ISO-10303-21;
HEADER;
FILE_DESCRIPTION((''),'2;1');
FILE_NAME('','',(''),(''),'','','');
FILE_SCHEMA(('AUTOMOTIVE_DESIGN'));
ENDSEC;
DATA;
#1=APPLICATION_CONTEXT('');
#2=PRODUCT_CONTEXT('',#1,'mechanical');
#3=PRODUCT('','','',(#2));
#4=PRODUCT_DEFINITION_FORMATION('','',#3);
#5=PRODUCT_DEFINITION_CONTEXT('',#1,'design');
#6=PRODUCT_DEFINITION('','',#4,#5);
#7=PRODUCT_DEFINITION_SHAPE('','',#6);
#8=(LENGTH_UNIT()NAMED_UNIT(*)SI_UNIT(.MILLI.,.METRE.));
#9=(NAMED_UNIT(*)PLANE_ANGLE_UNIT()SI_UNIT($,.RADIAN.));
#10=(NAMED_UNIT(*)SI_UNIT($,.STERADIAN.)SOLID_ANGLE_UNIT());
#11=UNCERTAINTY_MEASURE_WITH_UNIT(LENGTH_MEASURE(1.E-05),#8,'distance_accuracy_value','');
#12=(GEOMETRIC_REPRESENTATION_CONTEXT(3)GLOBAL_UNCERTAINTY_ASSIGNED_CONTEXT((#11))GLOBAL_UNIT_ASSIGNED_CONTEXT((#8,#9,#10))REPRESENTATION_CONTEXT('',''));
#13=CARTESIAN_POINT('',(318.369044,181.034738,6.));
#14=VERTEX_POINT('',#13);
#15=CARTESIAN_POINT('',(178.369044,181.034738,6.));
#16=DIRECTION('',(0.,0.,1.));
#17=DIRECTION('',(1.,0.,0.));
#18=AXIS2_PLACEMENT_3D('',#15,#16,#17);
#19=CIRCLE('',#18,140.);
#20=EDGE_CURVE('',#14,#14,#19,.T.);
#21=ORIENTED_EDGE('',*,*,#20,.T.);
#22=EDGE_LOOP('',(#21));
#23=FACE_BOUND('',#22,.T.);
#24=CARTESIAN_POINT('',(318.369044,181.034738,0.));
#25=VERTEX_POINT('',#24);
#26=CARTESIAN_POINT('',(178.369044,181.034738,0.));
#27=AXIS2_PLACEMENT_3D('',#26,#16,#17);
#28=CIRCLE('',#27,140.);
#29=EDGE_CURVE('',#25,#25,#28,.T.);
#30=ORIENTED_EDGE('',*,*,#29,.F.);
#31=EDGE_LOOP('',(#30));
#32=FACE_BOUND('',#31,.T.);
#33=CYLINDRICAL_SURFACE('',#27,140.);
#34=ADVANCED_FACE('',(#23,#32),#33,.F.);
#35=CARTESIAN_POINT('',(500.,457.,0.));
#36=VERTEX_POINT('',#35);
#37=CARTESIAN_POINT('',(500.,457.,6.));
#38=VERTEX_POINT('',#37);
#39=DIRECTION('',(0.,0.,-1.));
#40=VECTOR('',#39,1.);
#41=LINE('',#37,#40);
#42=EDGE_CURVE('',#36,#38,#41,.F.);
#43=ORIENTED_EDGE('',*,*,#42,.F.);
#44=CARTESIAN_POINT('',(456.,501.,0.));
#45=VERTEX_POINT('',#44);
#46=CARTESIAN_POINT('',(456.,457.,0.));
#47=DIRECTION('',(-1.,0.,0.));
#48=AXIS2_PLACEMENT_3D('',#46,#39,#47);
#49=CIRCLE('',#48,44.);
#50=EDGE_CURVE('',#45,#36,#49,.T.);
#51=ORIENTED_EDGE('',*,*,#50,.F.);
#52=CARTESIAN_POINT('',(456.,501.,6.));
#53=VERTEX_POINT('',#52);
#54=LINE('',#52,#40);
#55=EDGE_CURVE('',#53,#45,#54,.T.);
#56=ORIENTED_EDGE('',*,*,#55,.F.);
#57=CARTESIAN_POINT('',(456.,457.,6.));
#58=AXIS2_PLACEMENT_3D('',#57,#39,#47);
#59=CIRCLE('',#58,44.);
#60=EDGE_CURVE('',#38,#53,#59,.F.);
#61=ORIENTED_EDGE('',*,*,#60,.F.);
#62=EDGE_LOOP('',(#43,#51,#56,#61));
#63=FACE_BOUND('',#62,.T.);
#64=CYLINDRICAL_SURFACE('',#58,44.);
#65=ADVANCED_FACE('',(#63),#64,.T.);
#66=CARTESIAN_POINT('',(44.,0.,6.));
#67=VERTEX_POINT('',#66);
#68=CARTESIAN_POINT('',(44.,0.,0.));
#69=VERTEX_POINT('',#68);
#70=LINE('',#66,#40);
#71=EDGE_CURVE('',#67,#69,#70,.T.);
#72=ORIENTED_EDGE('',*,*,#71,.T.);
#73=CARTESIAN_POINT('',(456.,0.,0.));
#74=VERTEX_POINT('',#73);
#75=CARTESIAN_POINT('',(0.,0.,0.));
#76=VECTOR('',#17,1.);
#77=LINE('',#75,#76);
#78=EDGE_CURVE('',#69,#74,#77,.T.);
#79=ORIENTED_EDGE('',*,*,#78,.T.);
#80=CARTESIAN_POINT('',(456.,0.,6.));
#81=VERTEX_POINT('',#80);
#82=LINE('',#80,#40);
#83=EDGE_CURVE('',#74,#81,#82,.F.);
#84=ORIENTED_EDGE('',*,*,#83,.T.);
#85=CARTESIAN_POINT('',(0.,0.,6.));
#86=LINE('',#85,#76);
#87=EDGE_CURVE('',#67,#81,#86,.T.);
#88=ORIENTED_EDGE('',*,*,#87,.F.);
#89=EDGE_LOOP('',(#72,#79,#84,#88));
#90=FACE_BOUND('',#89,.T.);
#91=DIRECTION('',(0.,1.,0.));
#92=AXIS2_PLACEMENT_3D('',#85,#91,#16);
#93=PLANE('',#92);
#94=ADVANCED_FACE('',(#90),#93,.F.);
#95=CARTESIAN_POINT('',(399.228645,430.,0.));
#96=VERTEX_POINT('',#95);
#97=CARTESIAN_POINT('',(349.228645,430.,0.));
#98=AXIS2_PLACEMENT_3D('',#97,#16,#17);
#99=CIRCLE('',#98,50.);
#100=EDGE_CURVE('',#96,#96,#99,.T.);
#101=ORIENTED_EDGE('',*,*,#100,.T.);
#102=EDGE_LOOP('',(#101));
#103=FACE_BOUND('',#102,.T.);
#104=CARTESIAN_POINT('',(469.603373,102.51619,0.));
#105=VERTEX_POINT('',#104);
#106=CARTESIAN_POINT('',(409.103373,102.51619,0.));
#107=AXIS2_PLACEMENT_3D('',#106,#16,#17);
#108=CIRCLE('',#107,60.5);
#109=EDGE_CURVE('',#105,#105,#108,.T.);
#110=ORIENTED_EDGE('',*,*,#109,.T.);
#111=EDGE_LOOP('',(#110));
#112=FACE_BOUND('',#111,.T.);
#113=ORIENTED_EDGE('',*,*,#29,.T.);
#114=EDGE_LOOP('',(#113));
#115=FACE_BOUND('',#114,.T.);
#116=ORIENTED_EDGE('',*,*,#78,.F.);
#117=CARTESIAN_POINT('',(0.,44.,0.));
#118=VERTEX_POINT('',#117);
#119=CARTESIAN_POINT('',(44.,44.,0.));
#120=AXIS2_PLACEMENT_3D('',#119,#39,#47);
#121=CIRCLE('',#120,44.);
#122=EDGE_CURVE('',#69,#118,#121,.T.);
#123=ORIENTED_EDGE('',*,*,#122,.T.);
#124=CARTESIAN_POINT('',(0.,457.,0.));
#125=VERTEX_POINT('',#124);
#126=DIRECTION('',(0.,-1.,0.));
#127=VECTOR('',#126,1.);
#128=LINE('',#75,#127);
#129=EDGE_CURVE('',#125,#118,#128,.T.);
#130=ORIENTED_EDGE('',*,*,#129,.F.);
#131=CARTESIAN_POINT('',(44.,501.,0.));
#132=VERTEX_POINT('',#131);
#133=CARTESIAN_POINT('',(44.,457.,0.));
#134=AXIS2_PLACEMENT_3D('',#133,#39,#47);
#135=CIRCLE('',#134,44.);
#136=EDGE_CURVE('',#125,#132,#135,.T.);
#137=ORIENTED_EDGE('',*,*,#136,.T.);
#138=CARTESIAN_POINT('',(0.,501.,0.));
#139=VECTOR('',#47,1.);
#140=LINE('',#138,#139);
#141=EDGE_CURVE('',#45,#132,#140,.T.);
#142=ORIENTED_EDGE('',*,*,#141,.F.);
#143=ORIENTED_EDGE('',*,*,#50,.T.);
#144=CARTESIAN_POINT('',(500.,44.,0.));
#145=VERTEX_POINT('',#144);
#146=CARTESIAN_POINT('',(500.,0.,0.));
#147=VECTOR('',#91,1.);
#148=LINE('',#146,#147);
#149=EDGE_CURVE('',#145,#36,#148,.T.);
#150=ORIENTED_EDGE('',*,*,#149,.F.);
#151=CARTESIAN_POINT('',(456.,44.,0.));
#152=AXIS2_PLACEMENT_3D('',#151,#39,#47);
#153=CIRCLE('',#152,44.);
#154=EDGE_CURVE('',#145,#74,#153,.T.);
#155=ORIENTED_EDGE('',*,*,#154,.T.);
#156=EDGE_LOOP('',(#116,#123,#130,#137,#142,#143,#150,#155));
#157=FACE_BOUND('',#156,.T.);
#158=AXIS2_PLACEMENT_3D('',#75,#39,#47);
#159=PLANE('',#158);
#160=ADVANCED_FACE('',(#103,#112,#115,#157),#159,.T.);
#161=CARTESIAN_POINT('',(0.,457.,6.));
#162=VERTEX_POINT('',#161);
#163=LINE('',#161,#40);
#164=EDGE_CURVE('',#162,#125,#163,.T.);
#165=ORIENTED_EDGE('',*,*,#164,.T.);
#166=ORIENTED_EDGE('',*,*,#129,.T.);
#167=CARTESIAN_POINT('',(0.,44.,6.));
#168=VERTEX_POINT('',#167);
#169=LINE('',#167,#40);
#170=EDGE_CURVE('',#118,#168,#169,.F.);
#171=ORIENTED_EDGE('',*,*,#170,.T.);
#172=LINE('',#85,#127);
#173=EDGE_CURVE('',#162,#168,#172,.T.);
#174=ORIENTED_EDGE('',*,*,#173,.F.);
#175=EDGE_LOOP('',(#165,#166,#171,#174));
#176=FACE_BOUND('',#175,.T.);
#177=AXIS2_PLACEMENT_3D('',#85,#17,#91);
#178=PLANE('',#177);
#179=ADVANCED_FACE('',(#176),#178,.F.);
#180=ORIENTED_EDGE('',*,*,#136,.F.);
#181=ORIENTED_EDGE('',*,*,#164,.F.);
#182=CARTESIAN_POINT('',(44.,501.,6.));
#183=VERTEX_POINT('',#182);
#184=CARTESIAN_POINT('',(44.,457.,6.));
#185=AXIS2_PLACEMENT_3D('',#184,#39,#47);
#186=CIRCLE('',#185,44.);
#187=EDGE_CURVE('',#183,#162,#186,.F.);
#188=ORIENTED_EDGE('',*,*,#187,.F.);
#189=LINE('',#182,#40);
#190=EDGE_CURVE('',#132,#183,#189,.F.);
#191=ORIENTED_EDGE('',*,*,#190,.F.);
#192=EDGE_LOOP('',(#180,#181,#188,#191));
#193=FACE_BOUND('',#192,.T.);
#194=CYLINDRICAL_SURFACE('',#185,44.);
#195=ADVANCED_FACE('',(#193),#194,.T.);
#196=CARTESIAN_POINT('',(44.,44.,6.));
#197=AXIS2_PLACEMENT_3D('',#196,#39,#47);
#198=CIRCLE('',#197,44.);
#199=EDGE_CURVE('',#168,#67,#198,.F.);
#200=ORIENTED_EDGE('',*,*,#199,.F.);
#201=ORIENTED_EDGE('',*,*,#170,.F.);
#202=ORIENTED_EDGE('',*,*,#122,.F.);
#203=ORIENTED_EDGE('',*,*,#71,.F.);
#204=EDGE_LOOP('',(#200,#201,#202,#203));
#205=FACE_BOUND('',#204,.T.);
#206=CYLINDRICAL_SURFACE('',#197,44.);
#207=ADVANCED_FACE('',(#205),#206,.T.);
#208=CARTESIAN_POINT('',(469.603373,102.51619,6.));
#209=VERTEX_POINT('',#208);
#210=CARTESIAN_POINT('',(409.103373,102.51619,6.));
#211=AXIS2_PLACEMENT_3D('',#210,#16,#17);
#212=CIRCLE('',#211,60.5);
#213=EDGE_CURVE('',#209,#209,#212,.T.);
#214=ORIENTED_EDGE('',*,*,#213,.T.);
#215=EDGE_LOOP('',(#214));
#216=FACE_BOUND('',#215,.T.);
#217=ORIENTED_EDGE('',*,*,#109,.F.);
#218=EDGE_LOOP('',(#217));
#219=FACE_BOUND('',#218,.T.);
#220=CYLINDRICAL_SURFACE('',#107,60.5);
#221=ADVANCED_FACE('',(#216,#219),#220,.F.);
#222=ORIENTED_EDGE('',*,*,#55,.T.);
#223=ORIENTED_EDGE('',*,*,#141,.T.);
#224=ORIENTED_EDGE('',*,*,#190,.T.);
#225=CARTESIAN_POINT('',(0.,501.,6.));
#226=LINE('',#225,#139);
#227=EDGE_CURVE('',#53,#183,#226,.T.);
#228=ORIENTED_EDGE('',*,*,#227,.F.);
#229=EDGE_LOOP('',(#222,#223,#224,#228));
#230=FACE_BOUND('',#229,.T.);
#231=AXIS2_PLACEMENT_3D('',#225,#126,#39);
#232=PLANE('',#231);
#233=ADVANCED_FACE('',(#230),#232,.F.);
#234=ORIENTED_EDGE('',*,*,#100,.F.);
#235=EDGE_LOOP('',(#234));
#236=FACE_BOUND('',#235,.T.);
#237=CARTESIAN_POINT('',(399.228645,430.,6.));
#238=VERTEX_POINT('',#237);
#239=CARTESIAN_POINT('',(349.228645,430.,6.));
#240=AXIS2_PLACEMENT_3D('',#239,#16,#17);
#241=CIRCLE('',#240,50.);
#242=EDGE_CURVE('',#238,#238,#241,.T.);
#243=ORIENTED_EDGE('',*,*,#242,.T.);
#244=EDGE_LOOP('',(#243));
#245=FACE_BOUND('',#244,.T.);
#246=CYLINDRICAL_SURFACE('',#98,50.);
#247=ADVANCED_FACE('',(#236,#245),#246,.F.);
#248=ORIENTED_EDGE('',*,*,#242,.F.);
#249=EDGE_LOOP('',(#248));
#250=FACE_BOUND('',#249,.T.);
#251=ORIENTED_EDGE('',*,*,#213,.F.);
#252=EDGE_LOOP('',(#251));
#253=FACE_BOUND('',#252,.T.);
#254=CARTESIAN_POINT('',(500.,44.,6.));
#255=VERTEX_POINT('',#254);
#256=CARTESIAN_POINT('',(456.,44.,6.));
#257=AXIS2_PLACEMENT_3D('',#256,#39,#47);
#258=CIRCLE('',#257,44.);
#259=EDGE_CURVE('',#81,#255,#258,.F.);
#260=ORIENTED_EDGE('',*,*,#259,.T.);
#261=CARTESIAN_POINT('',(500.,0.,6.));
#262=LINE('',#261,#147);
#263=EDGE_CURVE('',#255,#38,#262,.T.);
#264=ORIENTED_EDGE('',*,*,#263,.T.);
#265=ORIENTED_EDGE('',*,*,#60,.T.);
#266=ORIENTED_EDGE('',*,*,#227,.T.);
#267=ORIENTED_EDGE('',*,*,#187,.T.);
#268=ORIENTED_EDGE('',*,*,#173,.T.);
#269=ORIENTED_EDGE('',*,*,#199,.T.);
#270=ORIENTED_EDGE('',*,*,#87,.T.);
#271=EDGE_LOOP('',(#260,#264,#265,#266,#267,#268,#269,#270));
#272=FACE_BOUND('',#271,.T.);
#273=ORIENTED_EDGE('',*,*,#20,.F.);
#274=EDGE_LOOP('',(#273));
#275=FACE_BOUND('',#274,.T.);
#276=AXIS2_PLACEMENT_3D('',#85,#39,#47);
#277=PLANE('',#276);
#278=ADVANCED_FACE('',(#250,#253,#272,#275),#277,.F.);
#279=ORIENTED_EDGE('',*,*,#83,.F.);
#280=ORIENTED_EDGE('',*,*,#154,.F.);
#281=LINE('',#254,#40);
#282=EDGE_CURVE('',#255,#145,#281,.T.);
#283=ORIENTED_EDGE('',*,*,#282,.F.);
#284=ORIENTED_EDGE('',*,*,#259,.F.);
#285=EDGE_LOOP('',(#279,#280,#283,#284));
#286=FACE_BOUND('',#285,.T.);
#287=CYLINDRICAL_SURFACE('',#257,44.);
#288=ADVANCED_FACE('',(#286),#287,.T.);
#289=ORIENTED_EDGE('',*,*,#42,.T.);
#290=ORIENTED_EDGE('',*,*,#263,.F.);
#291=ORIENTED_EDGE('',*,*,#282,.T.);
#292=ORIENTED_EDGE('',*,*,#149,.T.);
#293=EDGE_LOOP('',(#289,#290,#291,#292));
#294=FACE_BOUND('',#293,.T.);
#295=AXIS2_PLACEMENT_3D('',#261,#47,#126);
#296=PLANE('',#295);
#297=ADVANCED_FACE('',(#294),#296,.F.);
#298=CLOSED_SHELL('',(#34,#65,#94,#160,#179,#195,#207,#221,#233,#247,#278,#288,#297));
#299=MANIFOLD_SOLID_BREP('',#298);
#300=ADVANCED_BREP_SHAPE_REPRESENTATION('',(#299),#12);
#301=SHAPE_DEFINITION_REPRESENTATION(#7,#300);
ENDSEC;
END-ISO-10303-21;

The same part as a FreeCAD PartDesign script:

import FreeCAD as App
import Part
import Sketcher


def edges_at(feature, points):
    """Names of the edges that pass closest to the given points."""
    edges = feature.Shape.Edges
    near = lambda p: min(range(len(edges)), key=lambda i: edges[i].distToShape(Part.Vertex(*p))[0])
    return sorted({f"Edge{near(p) + 1}" for p in points})

doc = App.newDocument("Part")
body = doc.addObject("PartDesign::Body", "Body")

# Sketch on XY plane
sketch1 = body.newObject("Sketcher::SketchObject", "Sketch")
sketch1.AttachmentSupport = (doc.getObject("XY_Plane"), [""])
sketch1.MapMode = "FlatFace"
sketch1.addGeometry(Part.LineSegment(App.Vector(0, 501, 0), App.Vector(0, 0, 0)), False)
sketch1.addGeometry(Part.LineSegment(App.Vector(0, 0, 0), App.Vector(500, 0, 0)), False)
sketch1.addGeometry(Part.LineSegment(App.Vector(500, 0, 0), App.Vector(500, 501, 0)), False)
sketch1.addGeometry(Part.LineSegment(App.Vector(500, 501, 0), App.Vector(0, 501, 0)), False)
sketch1.addConstraint(Sketcher.Constraint("Coincident", 0, 2, 1, 1))
sketch1.addConstraint(Sketcher.Constraint("Coincident", 1, 2, 2, 1))
sketch1.addConstraint(Sketcher.Constraint("Coincident", 2, 2, 3, 1))
sketch1.addConstraint(Sketcher.Constraint("Coincident", 3, 2, 0, 1))
sketch1.addConstraint(Sketcher.Constraint("Vertical", 0))
sketch1.addConstraint(Sketcher.Constraint("Horizontal", 1))
sketch1.addConstraint(Sketcher.Constraint("Vertical", 2))
sketch1.addConstraint(Sketcher.Constraint("Horizontal", 3))
sketch1.addConstraint(Sketcher.Constraint("Coincident", 0, 2, -1, 1))
sketch1.addConstraint(Sketcher.Constraint("DistanceX", 1, 1, 1, 2, 500.0))
sketch1.addConstraint(Sketcher.Constraint("DistanceY", 0, 2, 0, 1, 501.0))
pad1 = body.newObject("PartDesign::Pad", "Pad")
pad1.Profile = sketch1
pad1.Length = 6
doc.recompute()

fillet = body.newObject("PartDesign::Fillet", "Fillet")
fillet.Base = (pad1, edges_at(pad1, [
    (0, 501, 3),
    (500, 501, 3),
    (500, 0, 3),
    (0, 0, 3),
]))
fillet.Radius = 44

# Sketch on XY plane
sketch2 = body.newObject("Sketcher::SketchObject", "Sketch001")
sketch2.AttachmentSupport = (doc.getObject("XY_Plane"), [""])
sketch2.MapMode = "FlatFace"
sketch2.AttachmentOffset = App.Placement(App.Vector(0, 0, 6), App.Rotation())
sketch2.addGeometry(Part.Circle(App.Vector(178, 181, 0), App.Vector(0, 0, 1), 140), False)
sketch2.addConstraint(Sketcher.Constraint("Diameter", 0, 280.0))
sketch2.addConstraint(Sketcher.Constraint("DistanceY", -1, 1, 0, 3, 181.034738))
sketch2.addConstraint(Sketcher.Constraint("DistanceX", -1, 1, 0, 3, 178.369044))
pocket1 = body.newObject("PartDesign::Pocket", "Pocket")
pocket1.Profile = sketch2
pocket1.Type = "ThroughAll"

# Sketch on XY plane
sketch3 = body.newObject("Sketcher::SketchObject", "Sketch002")
sketch3.AttachmentSupport = (doc.getObject("XY_Plane"), [""])
sketch3.MapMode = "FlatFace"
sketch3.AttachmentOffset = App.Placement(App.Vector(0, 0, 6), App.Rotation())
sketch3.addGeometry(Part.Circle(App.Vector(409, 103, 0), App.Vector(0, 0, 1), 60), False)
sketch3.addConstraint(Sketcher.Constraint("Diameter", 0, 121.0))
sketch3.addConstraint(Sketcher.Constraint("DistanceY", -1, 1, 0, 3, 102.51619))
sketch3.addConstraint(Sketcher.Constraint("DistanceX", -1, 1, 0, 3, 409.103373))
pocket2 = body.newObject("PartDesign::Pocket", "Pocket001")
pocket2.Profile = sketch3
pocket2.Type = "ThroughAll"

# Sketch on XY plane
sketch4 = body.newObject("Sketcher::SketchObject", "Sketch003")
sketch4.AttachmentSupport = (doc.getObject("XY_Plane"), [""])
sketch4.MapMode = "FlatFace"
sketch4.AttachmentOffset = App.Placement(App.Vector(0, 0, 6), App.Rotation())
sketch4.addGeometry(Part.Circle(App.Vector(349, 430, 0), App.Vector(0, 0, 1), 50), False)
sketch4.addConstraint(Sketcher.Constraint("Diameter", 0, 100.0))
sketch4.addConstraint(Sketcher.Constraint("DistanceY", -1, 1, 0, 3, 430.0))
sketch4.addConstraint(Sketcher.Constraint("DistanceX", -1, 1, 0, 3, 349.228645))
pocket3 = body.newObject("PartDesign::Pocket", "Pocket002")
pocket3.Profile = sketch4
pocket3.Type = "ThroughAll"

doc.recompute()
